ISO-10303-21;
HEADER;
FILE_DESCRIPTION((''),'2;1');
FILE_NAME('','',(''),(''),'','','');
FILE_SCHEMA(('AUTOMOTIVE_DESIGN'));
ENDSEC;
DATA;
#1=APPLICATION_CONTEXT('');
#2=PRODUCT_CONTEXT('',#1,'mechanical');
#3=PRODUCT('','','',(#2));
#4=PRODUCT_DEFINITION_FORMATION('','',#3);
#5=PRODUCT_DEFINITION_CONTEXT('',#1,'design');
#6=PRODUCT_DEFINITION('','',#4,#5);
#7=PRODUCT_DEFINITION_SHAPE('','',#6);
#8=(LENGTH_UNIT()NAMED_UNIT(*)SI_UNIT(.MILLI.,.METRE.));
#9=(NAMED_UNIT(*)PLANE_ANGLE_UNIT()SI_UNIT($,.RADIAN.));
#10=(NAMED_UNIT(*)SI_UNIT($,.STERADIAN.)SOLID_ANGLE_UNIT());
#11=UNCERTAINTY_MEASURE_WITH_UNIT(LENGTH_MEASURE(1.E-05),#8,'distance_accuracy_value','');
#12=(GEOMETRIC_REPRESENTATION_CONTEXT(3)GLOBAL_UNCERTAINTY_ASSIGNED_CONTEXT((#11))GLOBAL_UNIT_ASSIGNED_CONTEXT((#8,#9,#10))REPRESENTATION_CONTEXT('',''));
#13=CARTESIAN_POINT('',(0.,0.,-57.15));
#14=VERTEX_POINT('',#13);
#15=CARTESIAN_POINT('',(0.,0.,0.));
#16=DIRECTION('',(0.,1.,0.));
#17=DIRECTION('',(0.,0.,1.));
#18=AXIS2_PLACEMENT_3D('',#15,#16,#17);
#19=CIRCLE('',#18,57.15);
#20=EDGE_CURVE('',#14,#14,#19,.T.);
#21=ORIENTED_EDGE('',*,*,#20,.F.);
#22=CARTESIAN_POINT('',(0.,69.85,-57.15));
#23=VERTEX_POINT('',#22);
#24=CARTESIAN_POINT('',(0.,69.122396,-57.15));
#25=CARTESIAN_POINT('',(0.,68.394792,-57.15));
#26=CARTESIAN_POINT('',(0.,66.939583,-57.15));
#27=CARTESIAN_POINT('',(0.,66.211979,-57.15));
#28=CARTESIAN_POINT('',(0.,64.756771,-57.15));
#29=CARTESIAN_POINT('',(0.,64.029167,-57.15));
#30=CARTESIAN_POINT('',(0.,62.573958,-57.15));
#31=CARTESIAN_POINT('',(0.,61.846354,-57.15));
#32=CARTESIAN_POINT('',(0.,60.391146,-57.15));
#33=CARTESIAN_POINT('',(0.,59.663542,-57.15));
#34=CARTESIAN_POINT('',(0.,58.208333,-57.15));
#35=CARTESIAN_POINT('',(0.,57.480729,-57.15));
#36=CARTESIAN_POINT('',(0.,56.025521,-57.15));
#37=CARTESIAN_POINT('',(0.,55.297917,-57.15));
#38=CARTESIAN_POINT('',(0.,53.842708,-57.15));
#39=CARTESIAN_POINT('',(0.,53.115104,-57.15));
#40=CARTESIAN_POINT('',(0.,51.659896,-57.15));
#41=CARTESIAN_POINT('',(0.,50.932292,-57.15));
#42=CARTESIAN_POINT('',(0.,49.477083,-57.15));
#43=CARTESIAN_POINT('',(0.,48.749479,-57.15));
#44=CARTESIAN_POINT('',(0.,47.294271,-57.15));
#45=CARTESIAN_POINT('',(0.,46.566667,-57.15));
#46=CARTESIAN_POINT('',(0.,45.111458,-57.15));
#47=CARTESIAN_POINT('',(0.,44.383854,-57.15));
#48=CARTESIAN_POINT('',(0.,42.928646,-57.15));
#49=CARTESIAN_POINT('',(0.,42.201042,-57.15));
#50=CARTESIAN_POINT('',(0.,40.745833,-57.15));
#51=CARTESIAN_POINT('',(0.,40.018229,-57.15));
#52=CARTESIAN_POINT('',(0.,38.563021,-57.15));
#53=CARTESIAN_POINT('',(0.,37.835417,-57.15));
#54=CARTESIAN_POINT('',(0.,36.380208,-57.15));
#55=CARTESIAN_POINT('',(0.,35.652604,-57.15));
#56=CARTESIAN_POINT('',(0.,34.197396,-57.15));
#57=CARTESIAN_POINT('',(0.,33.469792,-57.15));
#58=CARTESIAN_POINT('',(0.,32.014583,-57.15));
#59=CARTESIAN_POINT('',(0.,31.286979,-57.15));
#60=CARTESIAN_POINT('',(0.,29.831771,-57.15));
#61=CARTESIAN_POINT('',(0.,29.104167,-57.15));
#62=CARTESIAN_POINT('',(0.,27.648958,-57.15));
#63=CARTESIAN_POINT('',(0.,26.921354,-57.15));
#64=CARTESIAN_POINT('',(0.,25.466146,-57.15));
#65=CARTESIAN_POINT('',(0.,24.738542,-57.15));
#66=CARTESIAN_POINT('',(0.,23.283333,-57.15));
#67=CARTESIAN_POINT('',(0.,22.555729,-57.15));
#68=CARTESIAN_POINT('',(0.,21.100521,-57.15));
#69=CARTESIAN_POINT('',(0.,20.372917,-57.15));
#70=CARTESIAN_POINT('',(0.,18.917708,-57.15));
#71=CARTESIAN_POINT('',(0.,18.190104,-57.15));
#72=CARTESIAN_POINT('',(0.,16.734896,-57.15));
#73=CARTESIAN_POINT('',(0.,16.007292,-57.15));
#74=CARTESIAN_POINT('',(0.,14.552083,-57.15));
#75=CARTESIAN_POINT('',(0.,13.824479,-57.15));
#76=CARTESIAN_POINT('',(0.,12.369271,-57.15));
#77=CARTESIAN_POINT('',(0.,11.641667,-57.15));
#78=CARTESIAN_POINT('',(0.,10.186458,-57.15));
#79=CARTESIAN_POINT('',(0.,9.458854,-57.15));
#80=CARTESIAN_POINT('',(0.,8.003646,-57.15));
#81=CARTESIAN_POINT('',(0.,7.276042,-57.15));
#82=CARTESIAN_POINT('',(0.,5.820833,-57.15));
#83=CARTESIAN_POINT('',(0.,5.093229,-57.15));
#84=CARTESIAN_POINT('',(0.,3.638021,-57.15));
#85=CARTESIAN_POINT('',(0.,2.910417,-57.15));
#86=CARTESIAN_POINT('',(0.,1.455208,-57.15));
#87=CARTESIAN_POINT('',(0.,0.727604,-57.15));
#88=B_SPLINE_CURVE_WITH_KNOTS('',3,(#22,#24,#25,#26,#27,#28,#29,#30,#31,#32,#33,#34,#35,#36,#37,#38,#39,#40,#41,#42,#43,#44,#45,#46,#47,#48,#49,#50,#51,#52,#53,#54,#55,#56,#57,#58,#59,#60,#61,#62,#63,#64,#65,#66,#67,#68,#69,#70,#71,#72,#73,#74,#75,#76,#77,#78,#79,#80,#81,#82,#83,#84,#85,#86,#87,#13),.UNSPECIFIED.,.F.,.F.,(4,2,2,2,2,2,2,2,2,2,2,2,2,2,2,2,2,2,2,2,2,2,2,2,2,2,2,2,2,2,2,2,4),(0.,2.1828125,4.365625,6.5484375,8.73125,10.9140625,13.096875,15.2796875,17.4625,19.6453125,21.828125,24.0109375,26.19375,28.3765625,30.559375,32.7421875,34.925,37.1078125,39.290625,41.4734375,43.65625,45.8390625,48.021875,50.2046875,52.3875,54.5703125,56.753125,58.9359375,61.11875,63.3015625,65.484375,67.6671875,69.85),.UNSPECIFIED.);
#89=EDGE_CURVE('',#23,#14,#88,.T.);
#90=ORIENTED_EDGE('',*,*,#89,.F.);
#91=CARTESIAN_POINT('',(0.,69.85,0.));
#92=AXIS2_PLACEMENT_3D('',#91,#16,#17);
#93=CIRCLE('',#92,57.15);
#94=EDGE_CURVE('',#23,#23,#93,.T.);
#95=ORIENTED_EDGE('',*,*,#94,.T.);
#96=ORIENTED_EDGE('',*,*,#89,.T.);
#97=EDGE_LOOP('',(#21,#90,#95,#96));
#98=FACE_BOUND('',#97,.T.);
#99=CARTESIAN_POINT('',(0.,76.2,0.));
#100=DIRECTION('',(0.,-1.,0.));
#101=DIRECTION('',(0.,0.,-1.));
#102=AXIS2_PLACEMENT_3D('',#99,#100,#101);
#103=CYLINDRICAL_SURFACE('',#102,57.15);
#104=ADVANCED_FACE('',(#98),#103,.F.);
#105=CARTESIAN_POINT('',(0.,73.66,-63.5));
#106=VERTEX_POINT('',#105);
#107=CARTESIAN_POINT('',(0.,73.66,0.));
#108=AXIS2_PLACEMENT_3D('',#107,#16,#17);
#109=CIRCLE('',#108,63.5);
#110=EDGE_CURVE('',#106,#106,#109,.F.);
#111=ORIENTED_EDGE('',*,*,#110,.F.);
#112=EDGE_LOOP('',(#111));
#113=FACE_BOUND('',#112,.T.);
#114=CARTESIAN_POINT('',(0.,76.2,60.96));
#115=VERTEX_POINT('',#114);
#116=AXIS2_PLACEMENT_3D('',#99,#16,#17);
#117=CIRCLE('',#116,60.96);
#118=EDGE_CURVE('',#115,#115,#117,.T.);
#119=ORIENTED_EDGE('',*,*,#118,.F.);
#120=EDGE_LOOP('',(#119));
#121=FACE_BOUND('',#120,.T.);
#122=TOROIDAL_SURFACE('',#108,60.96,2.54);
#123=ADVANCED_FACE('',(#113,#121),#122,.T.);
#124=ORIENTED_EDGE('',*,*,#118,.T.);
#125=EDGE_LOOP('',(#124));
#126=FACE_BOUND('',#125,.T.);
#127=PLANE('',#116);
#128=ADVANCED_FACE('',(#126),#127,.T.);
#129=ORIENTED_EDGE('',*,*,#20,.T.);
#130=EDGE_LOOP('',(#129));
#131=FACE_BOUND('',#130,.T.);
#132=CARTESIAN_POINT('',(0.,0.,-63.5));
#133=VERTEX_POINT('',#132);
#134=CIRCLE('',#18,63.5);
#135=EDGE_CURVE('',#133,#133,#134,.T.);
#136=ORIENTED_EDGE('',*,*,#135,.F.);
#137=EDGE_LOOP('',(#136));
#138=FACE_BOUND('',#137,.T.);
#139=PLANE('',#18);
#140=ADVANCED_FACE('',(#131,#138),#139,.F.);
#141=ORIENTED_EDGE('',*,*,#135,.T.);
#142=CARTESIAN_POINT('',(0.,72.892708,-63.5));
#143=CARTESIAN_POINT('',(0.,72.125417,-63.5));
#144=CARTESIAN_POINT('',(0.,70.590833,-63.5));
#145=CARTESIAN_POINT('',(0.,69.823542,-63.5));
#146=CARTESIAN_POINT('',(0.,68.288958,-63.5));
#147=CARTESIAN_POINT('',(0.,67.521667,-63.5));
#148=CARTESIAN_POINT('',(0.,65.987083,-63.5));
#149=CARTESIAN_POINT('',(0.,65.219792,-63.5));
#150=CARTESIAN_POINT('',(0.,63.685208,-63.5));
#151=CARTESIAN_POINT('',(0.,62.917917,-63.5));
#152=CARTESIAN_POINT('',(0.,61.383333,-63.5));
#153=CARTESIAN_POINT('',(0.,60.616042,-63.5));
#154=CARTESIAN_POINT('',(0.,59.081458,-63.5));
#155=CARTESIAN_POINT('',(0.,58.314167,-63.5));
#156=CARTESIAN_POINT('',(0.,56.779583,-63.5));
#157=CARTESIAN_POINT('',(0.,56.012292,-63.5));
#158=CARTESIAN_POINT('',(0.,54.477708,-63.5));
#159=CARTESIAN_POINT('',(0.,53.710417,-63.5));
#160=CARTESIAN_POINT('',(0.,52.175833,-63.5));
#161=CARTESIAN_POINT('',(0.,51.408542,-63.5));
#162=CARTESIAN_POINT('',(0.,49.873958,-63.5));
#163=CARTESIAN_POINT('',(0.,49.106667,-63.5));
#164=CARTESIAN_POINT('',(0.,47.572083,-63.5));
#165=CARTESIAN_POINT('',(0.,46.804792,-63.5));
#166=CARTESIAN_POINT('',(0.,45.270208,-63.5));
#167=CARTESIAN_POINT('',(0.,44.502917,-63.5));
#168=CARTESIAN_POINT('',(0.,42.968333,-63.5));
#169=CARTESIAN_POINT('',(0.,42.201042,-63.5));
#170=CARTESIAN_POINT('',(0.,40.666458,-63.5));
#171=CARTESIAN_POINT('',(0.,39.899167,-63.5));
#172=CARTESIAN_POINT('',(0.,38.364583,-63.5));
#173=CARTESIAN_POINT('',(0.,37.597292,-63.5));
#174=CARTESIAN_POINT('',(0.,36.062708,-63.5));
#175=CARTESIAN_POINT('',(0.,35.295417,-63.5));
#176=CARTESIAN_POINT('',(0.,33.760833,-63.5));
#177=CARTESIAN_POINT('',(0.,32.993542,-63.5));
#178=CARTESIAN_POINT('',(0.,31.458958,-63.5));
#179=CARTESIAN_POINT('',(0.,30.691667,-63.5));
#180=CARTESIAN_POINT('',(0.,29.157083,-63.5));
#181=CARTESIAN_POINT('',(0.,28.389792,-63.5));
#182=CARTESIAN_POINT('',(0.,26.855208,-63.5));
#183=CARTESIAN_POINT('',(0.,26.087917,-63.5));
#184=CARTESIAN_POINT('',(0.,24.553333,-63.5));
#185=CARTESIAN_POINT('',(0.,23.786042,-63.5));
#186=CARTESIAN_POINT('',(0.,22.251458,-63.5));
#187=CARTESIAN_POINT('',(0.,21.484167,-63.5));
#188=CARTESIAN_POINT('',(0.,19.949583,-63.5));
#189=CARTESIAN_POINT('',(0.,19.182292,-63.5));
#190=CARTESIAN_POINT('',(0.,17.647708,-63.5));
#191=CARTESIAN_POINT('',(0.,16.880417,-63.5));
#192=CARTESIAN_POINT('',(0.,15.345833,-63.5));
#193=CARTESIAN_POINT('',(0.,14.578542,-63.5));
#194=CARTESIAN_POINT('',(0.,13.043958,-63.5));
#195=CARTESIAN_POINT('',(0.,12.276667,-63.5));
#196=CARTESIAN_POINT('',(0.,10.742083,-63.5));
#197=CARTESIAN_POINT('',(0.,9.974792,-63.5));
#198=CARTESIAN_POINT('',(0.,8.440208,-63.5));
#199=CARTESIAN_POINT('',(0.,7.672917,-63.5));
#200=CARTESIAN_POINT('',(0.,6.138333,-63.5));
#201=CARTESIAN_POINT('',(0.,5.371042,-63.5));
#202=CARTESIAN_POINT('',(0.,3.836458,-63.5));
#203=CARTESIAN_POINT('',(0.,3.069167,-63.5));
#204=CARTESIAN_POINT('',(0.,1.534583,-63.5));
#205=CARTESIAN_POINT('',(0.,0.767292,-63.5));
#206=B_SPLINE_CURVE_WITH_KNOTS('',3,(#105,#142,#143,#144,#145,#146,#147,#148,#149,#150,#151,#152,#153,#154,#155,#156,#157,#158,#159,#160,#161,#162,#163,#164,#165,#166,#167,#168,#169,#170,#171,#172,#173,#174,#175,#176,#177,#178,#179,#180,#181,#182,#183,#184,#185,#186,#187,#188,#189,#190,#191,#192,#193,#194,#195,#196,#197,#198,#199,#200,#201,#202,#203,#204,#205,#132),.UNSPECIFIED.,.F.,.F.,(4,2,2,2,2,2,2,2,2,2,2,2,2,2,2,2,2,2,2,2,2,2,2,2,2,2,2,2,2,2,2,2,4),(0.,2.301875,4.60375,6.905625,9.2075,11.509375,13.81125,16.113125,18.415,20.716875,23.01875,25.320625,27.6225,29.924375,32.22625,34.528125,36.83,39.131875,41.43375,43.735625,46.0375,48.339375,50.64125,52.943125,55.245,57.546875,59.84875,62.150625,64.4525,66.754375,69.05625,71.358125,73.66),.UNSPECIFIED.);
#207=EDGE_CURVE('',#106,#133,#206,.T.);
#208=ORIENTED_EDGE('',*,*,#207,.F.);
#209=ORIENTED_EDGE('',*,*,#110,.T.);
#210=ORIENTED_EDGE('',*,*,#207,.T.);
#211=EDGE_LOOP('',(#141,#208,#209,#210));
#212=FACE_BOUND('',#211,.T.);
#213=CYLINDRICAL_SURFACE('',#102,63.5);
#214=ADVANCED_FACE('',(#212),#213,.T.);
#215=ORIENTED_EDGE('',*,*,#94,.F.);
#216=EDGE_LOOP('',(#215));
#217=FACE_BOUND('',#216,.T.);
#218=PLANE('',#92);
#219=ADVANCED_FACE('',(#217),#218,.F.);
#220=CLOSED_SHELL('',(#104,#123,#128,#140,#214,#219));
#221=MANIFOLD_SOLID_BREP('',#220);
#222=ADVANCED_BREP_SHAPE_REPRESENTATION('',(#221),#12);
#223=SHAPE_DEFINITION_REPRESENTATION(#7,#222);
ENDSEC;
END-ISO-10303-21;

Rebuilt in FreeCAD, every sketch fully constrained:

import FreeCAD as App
import Part
import Sketcher
Q = App.Units.Quantity


def edges_at(feature, points):
    """Names of the edges that pass closest to the given points."""
    edges = feature.Shape.Edges
    near = lambda p: min(range(len(edges)), key=lambda i: edges[i].distToShape(Part.Vertex(*p))[0])
    return sorted({f"Edge{near(p) + 1}" for p in points})


def faces_at(feature, points):
    """Names of the faces that lie closest to the given points."""
    faces = feature.Shape.Faces
    near = lambda p: min(range(len(faces)), key=lambda i: faces[i].distToShape(Part.Vertex(*p))[0])
    return sorted({f"Face{near(p) + 1}" for p in points})

doc = App.newDocument("Part")
body = doc.addObject("PartDesign::Body", "Body")

# Sketch on XZ plane
sketch1 = doc.addObject("Sketcher::SketchObject", "Sketch")
body.addObject(sketch1)
sketch1.AttachmentSupport = (doc.XZ_Plane, [""])
sketch1.MapMode = "FlatFace"
sketch1.addGeometry(Part.Circle(App.Vector(0, 0, 0), App.Vector(0, 0, 1), 63.5), False)
sketch1.addConstraint(Sketcher.Constraint("Coincident", 0, 3, -1, 1))
sketch1.addConstraint(Sketcher.Constraint("Diameter", 0, Q("5 in")))
pad1 = doc.addObject("PartDesign::Pad", "Pad")
body.addObject(pad1)
pad1.Profile = sketch1
pad1.Length = Q("3 in")
pad1.Reversed = True
doc.recompute()

thickness = doc.addObject("PartDesign::Thickness", "Thickness")
body.addObject(thickness)
thickness.Base = (pad1, faces_at(pad1, [(0, 0, 0)]))
thickness.Value = Q("0.25 in")
thickness.Reversed = True
thickness.Join = "Intersection"
doc.recompute()

fillet = doc.addObject("PartDesign::Fillet", "Fillet")
body.addObject(fillet)
fillet.Base = (thickness, edges_at(thickness, [(0, 76.2, 63.5)]))
fillet.Radius = Q("0.1 in")

doc.recompute()
